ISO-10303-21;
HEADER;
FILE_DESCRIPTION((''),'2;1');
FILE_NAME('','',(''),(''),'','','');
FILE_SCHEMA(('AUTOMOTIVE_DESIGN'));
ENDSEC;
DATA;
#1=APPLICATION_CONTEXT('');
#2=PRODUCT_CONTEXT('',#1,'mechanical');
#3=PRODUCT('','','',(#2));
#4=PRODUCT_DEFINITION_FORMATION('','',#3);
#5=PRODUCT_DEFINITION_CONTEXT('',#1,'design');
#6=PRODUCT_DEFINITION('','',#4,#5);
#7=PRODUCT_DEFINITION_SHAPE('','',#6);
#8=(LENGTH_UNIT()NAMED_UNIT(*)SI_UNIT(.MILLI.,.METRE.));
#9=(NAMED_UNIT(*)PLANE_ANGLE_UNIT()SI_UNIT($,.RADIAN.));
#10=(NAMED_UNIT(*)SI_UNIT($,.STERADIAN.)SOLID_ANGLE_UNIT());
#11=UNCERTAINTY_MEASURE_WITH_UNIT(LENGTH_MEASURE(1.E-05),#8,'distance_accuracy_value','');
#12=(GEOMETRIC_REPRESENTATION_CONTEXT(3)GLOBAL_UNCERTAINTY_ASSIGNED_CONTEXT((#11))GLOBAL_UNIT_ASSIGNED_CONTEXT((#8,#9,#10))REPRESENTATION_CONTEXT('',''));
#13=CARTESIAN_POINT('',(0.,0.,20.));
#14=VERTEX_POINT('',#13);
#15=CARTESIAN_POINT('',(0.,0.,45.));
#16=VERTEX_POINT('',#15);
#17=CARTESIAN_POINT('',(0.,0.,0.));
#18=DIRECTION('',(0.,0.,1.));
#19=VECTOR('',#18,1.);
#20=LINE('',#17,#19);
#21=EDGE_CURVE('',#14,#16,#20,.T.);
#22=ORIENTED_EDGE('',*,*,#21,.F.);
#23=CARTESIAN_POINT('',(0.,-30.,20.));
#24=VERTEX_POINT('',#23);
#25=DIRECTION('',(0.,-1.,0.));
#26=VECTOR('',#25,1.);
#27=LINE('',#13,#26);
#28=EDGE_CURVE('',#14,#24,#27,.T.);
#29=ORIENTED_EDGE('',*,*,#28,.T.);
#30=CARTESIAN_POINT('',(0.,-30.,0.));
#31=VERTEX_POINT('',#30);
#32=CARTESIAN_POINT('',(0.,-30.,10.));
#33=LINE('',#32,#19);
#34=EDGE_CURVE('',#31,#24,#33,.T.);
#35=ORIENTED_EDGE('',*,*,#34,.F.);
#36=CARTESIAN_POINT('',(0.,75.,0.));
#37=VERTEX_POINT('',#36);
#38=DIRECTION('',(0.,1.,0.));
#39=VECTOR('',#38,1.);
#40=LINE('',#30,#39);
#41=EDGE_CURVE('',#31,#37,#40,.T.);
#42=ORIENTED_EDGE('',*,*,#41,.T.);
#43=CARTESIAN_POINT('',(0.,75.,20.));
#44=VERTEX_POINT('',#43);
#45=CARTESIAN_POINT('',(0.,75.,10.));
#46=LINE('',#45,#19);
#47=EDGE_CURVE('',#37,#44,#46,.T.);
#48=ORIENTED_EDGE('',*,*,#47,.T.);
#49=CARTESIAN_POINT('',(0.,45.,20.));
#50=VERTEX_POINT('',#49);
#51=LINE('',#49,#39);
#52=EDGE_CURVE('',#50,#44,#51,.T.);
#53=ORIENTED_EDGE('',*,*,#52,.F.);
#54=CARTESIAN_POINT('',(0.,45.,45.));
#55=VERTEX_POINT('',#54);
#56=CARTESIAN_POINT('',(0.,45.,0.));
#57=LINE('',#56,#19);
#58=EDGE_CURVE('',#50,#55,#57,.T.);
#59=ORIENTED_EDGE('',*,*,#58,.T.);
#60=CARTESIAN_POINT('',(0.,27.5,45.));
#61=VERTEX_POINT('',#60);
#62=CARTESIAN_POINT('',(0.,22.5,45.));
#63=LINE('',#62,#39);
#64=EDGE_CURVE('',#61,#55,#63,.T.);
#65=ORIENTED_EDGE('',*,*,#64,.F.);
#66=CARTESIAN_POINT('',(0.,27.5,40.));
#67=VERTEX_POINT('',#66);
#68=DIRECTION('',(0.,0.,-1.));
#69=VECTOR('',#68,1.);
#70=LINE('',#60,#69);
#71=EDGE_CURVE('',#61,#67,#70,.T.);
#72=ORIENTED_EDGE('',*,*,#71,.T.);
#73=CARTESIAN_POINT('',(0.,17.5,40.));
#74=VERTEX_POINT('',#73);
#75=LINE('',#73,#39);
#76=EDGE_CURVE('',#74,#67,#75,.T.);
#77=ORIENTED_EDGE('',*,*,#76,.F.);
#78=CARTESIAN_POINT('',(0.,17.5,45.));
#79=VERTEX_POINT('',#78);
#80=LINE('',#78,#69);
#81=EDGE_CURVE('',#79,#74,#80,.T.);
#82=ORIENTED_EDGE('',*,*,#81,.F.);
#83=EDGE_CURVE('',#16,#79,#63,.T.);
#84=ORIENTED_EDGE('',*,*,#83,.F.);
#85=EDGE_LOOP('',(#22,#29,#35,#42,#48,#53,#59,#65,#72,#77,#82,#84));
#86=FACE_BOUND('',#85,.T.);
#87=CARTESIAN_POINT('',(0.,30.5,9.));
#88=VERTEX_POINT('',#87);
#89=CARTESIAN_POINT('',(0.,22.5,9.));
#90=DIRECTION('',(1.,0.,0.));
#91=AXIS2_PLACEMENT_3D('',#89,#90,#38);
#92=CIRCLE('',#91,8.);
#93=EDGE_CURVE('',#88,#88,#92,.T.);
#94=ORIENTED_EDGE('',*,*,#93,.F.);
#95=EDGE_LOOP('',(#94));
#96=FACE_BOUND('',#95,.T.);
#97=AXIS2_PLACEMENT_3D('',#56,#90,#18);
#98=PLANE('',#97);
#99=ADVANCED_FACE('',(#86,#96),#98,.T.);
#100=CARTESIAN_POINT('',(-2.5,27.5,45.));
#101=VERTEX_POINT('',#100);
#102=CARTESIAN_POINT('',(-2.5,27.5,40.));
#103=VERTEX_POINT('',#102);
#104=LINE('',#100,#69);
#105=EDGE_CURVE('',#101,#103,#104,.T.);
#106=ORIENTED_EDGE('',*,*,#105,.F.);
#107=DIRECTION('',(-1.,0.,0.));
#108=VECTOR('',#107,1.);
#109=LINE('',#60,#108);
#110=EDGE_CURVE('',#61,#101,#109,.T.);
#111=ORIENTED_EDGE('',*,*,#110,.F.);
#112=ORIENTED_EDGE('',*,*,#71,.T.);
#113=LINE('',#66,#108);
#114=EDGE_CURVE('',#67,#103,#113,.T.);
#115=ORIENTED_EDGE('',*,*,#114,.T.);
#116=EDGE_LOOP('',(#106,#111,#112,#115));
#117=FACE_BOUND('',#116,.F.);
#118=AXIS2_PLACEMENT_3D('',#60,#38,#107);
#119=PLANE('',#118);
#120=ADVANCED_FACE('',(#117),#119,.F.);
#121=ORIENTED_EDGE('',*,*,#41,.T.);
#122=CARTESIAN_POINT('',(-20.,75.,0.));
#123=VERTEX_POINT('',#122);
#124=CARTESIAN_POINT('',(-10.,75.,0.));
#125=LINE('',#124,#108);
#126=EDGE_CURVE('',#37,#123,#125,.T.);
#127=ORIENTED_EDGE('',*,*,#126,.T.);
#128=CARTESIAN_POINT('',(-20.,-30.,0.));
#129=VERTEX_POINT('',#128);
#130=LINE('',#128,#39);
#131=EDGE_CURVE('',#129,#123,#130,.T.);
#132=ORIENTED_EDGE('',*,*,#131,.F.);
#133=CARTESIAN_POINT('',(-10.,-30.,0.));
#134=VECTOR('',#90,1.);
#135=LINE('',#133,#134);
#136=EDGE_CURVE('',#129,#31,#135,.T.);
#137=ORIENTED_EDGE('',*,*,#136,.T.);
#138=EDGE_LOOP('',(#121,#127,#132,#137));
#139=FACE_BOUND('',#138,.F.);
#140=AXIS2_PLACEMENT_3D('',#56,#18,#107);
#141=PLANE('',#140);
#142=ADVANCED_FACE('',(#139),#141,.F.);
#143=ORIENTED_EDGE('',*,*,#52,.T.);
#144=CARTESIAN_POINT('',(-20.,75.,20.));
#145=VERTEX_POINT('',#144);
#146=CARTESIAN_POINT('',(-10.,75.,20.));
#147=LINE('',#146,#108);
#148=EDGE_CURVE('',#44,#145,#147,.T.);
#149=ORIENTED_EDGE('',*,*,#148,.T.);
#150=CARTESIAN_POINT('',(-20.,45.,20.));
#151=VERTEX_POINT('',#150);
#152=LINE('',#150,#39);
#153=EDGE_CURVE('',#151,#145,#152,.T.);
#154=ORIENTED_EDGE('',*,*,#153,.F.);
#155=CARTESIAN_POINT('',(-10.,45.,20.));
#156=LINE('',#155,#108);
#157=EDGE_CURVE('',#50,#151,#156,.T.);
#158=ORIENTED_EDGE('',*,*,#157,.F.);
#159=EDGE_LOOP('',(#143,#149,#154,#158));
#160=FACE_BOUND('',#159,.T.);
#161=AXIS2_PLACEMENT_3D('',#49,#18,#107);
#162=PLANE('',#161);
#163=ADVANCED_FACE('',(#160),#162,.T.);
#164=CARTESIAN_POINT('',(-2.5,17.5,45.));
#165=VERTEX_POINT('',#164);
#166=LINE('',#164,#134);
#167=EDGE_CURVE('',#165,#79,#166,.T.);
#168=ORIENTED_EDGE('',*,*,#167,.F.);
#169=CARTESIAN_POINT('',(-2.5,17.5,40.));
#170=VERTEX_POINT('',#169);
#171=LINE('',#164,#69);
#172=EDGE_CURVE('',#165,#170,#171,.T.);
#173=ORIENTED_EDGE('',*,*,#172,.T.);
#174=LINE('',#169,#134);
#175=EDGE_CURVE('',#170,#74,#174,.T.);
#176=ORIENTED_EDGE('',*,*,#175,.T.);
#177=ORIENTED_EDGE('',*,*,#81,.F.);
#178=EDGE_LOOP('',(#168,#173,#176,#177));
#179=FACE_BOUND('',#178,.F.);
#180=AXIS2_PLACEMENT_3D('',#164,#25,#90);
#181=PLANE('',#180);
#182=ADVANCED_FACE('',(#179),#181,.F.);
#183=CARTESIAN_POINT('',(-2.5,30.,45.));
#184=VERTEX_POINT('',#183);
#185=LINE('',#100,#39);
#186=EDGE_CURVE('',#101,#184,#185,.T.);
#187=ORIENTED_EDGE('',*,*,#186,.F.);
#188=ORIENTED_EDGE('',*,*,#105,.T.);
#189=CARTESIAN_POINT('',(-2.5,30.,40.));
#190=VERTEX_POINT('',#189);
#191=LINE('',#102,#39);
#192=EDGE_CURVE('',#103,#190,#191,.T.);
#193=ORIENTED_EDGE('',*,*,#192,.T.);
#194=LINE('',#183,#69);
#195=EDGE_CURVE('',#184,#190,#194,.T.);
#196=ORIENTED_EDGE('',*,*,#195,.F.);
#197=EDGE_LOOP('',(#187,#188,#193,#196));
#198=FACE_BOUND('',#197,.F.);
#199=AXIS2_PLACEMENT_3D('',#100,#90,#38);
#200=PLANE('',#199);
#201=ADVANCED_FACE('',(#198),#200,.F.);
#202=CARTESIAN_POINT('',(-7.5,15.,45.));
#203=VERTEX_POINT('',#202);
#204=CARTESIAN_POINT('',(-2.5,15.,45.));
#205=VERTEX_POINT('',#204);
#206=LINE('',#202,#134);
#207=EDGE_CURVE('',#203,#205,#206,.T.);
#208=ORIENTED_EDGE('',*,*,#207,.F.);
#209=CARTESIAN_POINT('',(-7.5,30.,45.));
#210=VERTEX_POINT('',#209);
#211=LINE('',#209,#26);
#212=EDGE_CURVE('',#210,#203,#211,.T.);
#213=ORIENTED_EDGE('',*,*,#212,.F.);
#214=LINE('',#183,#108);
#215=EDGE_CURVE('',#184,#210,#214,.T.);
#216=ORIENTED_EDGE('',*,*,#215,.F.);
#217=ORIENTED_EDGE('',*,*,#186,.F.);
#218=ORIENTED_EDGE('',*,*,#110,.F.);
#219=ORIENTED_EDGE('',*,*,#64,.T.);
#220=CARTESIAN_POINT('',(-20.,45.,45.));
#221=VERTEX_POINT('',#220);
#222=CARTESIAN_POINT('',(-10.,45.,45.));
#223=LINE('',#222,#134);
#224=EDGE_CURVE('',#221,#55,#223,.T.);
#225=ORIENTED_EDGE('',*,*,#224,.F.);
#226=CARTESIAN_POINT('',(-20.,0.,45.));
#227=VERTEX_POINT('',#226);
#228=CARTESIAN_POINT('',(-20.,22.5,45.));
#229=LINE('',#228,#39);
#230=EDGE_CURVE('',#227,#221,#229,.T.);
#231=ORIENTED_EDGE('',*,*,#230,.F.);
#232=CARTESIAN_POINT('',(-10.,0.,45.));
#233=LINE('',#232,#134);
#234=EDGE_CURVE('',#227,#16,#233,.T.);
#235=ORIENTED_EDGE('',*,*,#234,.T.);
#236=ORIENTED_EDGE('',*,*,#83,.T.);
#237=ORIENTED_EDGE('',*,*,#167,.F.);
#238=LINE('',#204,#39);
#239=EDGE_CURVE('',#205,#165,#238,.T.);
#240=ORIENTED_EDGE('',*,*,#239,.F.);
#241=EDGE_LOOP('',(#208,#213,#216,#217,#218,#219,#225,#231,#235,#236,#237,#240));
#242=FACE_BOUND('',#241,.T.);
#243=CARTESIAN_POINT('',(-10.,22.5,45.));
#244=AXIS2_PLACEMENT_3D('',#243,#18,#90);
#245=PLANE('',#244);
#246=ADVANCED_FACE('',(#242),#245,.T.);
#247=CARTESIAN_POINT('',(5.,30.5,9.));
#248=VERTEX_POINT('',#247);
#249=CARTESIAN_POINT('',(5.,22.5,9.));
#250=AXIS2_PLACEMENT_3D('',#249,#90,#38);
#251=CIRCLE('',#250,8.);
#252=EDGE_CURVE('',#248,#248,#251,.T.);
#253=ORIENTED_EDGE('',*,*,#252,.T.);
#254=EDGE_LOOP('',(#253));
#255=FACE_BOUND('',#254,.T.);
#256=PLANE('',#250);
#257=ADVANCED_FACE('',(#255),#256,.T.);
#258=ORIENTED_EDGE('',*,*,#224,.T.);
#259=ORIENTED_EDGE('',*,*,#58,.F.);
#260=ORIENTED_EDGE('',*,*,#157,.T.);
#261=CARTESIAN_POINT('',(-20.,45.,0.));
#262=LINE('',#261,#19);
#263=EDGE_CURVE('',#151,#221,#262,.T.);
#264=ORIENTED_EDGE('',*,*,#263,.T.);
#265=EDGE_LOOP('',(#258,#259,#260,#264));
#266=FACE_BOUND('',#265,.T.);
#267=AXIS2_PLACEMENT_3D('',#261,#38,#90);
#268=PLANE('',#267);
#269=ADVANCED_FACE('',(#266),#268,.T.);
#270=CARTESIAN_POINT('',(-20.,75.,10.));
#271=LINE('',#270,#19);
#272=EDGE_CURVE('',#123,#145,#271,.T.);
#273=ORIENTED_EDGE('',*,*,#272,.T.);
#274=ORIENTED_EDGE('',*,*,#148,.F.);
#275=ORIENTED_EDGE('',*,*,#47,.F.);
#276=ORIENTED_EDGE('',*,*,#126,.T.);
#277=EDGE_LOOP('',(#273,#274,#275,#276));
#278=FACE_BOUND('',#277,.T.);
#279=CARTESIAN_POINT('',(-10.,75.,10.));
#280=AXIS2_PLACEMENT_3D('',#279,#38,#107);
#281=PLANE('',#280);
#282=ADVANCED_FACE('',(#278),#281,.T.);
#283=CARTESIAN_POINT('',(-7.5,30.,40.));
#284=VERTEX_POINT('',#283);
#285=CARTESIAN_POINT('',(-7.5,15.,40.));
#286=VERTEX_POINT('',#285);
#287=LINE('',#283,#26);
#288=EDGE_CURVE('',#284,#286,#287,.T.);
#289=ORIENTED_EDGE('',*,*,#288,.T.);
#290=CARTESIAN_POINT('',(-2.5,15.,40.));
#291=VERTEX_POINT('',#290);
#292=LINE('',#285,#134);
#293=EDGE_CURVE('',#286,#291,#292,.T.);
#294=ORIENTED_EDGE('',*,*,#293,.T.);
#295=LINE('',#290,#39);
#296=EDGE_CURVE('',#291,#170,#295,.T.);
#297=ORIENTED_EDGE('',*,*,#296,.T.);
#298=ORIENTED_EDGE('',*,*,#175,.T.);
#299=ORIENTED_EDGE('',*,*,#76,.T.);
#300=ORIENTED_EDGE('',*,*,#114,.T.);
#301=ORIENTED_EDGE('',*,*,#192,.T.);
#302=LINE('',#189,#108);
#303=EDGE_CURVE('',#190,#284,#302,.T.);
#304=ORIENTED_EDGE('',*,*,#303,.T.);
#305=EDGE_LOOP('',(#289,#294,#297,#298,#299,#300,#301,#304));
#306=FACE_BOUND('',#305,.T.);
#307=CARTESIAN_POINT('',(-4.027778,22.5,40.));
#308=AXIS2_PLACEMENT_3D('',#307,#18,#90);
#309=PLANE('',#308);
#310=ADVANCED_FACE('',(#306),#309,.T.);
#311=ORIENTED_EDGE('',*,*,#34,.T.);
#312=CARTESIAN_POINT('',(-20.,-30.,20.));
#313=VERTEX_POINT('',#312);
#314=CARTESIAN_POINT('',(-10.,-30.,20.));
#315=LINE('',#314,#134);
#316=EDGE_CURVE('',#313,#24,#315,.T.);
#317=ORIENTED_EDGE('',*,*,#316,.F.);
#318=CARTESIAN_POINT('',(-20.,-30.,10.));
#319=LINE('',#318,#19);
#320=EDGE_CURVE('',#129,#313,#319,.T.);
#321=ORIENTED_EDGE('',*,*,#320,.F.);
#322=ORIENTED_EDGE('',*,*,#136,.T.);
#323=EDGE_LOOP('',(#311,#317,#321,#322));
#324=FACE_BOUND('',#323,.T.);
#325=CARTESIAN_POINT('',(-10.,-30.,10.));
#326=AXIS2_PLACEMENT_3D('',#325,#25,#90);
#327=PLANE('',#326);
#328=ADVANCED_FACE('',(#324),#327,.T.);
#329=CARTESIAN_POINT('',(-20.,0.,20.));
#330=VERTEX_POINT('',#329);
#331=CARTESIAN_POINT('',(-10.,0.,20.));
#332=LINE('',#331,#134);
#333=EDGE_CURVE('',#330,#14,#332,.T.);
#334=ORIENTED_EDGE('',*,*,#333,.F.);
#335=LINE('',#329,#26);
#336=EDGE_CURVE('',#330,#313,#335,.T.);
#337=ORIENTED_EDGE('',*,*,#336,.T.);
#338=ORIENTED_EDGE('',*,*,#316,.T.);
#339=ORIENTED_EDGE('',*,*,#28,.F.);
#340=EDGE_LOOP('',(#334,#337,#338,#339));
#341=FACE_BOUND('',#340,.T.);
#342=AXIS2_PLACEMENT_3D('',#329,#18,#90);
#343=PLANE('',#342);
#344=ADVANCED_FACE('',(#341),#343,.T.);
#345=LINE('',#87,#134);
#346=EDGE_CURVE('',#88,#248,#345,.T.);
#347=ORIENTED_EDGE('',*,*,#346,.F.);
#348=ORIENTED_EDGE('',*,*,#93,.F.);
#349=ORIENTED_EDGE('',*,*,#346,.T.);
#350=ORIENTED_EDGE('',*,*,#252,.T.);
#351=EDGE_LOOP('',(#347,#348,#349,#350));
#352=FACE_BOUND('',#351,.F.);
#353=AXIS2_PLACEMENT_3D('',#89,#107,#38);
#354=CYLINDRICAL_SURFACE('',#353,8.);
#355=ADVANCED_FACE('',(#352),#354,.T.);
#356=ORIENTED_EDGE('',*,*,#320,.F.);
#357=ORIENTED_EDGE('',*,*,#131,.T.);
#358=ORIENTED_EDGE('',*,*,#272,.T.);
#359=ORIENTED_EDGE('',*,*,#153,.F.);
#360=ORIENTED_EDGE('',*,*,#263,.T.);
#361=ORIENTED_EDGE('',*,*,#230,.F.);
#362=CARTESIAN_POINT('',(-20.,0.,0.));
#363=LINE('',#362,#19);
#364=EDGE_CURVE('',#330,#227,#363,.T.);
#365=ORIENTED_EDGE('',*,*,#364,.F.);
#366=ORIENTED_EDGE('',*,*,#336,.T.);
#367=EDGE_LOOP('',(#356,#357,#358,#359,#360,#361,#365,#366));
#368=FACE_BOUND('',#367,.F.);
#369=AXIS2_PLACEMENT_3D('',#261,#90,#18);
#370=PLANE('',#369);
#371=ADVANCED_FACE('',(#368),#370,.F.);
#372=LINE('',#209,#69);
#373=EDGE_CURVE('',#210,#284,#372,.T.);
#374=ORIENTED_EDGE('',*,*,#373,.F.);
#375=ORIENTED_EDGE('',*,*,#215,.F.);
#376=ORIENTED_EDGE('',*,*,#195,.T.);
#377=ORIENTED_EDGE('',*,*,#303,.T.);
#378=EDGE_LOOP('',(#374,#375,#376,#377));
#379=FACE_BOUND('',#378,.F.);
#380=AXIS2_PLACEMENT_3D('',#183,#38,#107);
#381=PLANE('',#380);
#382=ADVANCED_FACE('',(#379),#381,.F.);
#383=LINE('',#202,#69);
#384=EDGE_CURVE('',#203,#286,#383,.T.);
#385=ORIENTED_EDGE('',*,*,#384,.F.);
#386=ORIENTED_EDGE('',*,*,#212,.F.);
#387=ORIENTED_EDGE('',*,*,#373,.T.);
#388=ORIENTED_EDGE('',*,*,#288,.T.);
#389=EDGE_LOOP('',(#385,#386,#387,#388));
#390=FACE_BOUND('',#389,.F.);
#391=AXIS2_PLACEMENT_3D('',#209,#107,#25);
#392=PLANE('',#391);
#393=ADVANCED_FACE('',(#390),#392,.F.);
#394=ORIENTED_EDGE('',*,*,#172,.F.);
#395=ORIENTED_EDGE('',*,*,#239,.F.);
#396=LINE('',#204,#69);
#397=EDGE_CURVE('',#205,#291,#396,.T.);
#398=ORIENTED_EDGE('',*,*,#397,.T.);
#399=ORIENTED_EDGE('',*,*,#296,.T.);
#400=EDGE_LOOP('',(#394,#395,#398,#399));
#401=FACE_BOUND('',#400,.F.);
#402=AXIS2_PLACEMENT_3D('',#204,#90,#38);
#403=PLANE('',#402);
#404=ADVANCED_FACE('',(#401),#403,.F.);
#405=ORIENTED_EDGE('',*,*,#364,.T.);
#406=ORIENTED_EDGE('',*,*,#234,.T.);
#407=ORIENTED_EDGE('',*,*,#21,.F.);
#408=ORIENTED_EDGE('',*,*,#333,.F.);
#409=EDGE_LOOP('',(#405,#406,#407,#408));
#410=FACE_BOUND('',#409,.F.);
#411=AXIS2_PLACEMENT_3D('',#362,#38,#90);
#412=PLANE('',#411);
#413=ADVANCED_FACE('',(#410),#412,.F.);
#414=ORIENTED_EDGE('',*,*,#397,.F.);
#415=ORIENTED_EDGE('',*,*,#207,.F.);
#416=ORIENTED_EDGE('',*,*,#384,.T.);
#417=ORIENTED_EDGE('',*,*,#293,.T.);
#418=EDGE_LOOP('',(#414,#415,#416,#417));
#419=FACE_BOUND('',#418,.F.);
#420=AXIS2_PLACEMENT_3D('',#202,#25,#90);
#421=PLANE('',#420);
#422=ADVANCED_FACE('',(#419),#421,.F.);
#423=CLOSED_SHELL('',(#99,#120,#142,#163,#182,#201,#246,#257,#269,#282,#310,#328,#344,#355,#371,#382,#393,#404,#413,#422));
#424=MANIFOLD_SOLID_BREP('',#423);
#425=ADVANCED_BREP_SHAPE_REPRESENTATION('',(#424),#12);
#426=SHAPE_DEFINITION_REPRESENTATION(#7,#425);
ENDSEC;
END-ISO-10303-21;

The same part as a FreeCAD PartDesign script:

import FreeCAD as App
import Part
import Sketcher
from FreeCAD import Vector
Q = App.Units.Quantity


def add_polygon(sketch, points):
    """Adds a closed chain of lines whose ends are joined by coincident constraints."""
    first, n = sketch.GeometryCount, len(points)
    for a, b in zip(points, points[1:] + points[:1]):
        sketch.addGeometry(Part.LineSegment(App.Vector(*a, 0), App.Vector(*b, 0)), False)
    for i in range(n):
        sketch.addConstraint(Sketcher.Constraint("Coincident", first + i, 2, first + (i + 1) % n, 1))

doc = App.newDocument("Part")
body = doc.addObject("PartDesign::Body", "Body")

# Sketch on XY plane
sketch1 = body.newObject("Sketcher::SketchObject", "Sketch")
sketch1.AttachmentSupport = (doc.getObject("XY_Plane"), [""])
sketch1.MapMode = "FlatFace"
add_polygon(sketch1, [(-20, 45), (-20, 0), (0, 0), (0, 45)])  # lines 0-3
sketch1.addConstraint([
    Sketcher.Constraint("Vertical", 0),
    Sketcher.Constraint("Horizontal", 1),
    Sketcher.Constraint("Vertical", 2),
    Sketcher.Constraint("Horizontal", 3),
    Sketcher.Constraint("Coincident", 1, 2, -1, 1),
    Sketcher.Constraint("DistanceX", 1, 1, 1, 2, Q("20 mm")),
    Sketcher.Constraint("DistanceY", 0, 2, 0, 1, Q("45 mm")),
])
pad1 = body.newObject("PartDesign::Pad", "Pad")
pad1.Profile = sketch1
pad1.Length = 45

# Sketch on XY plane
sketch2 = body.newObject("Sketcher::SketchObject", "Sketch001")
sketch2.AttachmentSupport = (doc.getObject("XY_Plane"), [""])
sketch2.MapMode = "FlatFace"
sketch2.AttachmentOffset = App.Placement(Vector(0, 0, 45), App.Rotation())
add_polygon(sketch2, [(0, 17.5), (0, 27.5), (-2.5, 27.5), (-2.5, 30), (-7.5, 30), (-7.5, 15), (-2.5, 15), (-2.5, 17.5)])  # lines 0-7
sketch2.addConstraint([
    Sketcher.Constraint("Vertical", 0),
    Sketcher.Constraint("Horizontal", 1),
    Sketcher.Constraint("Vertical", 2),
    Sketcher.Constraint("Horizontal", 3),
    Sketcher.Constraint("Vertical", 4),
    Sketcher.Constraint("Horizontal", 5),
    Sketcher.Constraint("Vertical", 6),
    Sketcher.Constraint("Horizontal", 7),
    Sketcher.Constraint("PointOnObject", 0, 2, -2),
    Sketcher.Constraint("Vertical", 2, 2, 5, 2),
    Sketcher.Constraint("Equal", 7, 2),
    Sketcher.Constraint("Equal", 2, 6),
    Sketcher.Constraint("DistanceX", 3, 2, 3, 1, Q("5 mm")),
    Sketcher.Constraint("DistanceY", 0, 1, 0, 2, Q("10 mm")),
    Sketcher.Constraint("DistanceY", 4, 2, 4, 1, Q("15 mm")),
    Sketcher.Constraint("DistanceY", -1, 1, 2, 2, Q("30 mm")),
])
pocket1 = body.newObject("PartDesign::Pocket", "Pocket")
pocket1.Profile = sketch2
pocket1.Length = 5

# Sketch on YZ plane
sketch3 = body.newObject("Sketcher::SketchObject", "Sketch002")
sketch3.AttachmentSupport = (doc.getObject("YZ_Plane"), [""])
sketch3.MapMode = "FlatFace"
sketch3.addGeometry(Part.Circle(Vector(22, 9, 0), Vector(0, 0, 1), 8), False)
sketch3.addConstraint([
    Sketcher.Constraint("Diameter", 0, Q("16 mm")),
    Sketcher.Constraint("DistanceY", -1, 1, 0, 3, Q("9 mm")),
    Sketcher.Constraint("DistanceX", -1, 1, 0, 3, Q("22.5 mm")),
])
pad2 = body.newObject("PartDesign::Pad", "Pad001")
pad2.Profile = sketch3
pad2.Length = 5

# Sketch on XZ plane
sketch4 = body.newObject("Sketcher::SketchObject", "Sketch003")
sketch4.AttachmentSupport = (doc.getObject("XZ_Plane"), [""])
sketch4.MapMode = "FlatFace"
add_polygon(sketch4, [(-20, 20), (-20, 0), (0, 0), (0, 20)])  # lines 0-3
sketch4.addConstraint([
    Sketcher.Constraint("Vertical", 0),
    Sketcher.Constraint("Horizontal", 1),
    Sketcher.Constraint("Vertical", 2),
    Sketcher.Constraint("Horizontal", 3),
    Sketcher.Constraint("Coincident", 1, 2, -1, 1),
    Sketcher.Constraint("Equal", 3, 0),
    Sketcher.Constraint("DistanceX", 1, 1, 1, 2, Q("20 mm")),
])
pad3 = body.newObject("PartDesign::Pad", "Pad002")
pad3.Profile = sketch4
pad3.Length = 30

# Sketch on XZ plane
sketch5 = body.newObject("Sketcher::SketchObject", "Sketch004")
sketch5.AttachmentSupport = (doc.getObject("XZ_Plane"), [""])
sketch5.MapMode = "FlatFace"
sketch5.AttachmentOffset = App.Placement(Vector(0, 0, -45), App.Rotation())
add_polygon(sketch5, [(0, 20), (0, 0), (-20, 0), (-20, 20)])  # lines 0-3
sketch5.addConstraint([
    Sketcher.Constraint("Vertical", 0),
    Sketcher.Constraint("Horizontal", 1),
    Sketcher.Constraint("Vertical", 2),
    Sketcher.Constraint("Horizontal", 3),
    Sketcher.Constraint("Coincident", 0, 2, -1, 1),
    Sketcher.Constraint("Equal", 3, 0),
    Sketcher.Constraint("DistanceX", 1, 2, 1, 1, Q("20 mm")),
])
pad4 = body.newObject("PartDesign::Pad", "Pad003")
pad4.Profile = sketch5
pad4.Length = 30
pad4.Reversed = True

doc.recompute()
